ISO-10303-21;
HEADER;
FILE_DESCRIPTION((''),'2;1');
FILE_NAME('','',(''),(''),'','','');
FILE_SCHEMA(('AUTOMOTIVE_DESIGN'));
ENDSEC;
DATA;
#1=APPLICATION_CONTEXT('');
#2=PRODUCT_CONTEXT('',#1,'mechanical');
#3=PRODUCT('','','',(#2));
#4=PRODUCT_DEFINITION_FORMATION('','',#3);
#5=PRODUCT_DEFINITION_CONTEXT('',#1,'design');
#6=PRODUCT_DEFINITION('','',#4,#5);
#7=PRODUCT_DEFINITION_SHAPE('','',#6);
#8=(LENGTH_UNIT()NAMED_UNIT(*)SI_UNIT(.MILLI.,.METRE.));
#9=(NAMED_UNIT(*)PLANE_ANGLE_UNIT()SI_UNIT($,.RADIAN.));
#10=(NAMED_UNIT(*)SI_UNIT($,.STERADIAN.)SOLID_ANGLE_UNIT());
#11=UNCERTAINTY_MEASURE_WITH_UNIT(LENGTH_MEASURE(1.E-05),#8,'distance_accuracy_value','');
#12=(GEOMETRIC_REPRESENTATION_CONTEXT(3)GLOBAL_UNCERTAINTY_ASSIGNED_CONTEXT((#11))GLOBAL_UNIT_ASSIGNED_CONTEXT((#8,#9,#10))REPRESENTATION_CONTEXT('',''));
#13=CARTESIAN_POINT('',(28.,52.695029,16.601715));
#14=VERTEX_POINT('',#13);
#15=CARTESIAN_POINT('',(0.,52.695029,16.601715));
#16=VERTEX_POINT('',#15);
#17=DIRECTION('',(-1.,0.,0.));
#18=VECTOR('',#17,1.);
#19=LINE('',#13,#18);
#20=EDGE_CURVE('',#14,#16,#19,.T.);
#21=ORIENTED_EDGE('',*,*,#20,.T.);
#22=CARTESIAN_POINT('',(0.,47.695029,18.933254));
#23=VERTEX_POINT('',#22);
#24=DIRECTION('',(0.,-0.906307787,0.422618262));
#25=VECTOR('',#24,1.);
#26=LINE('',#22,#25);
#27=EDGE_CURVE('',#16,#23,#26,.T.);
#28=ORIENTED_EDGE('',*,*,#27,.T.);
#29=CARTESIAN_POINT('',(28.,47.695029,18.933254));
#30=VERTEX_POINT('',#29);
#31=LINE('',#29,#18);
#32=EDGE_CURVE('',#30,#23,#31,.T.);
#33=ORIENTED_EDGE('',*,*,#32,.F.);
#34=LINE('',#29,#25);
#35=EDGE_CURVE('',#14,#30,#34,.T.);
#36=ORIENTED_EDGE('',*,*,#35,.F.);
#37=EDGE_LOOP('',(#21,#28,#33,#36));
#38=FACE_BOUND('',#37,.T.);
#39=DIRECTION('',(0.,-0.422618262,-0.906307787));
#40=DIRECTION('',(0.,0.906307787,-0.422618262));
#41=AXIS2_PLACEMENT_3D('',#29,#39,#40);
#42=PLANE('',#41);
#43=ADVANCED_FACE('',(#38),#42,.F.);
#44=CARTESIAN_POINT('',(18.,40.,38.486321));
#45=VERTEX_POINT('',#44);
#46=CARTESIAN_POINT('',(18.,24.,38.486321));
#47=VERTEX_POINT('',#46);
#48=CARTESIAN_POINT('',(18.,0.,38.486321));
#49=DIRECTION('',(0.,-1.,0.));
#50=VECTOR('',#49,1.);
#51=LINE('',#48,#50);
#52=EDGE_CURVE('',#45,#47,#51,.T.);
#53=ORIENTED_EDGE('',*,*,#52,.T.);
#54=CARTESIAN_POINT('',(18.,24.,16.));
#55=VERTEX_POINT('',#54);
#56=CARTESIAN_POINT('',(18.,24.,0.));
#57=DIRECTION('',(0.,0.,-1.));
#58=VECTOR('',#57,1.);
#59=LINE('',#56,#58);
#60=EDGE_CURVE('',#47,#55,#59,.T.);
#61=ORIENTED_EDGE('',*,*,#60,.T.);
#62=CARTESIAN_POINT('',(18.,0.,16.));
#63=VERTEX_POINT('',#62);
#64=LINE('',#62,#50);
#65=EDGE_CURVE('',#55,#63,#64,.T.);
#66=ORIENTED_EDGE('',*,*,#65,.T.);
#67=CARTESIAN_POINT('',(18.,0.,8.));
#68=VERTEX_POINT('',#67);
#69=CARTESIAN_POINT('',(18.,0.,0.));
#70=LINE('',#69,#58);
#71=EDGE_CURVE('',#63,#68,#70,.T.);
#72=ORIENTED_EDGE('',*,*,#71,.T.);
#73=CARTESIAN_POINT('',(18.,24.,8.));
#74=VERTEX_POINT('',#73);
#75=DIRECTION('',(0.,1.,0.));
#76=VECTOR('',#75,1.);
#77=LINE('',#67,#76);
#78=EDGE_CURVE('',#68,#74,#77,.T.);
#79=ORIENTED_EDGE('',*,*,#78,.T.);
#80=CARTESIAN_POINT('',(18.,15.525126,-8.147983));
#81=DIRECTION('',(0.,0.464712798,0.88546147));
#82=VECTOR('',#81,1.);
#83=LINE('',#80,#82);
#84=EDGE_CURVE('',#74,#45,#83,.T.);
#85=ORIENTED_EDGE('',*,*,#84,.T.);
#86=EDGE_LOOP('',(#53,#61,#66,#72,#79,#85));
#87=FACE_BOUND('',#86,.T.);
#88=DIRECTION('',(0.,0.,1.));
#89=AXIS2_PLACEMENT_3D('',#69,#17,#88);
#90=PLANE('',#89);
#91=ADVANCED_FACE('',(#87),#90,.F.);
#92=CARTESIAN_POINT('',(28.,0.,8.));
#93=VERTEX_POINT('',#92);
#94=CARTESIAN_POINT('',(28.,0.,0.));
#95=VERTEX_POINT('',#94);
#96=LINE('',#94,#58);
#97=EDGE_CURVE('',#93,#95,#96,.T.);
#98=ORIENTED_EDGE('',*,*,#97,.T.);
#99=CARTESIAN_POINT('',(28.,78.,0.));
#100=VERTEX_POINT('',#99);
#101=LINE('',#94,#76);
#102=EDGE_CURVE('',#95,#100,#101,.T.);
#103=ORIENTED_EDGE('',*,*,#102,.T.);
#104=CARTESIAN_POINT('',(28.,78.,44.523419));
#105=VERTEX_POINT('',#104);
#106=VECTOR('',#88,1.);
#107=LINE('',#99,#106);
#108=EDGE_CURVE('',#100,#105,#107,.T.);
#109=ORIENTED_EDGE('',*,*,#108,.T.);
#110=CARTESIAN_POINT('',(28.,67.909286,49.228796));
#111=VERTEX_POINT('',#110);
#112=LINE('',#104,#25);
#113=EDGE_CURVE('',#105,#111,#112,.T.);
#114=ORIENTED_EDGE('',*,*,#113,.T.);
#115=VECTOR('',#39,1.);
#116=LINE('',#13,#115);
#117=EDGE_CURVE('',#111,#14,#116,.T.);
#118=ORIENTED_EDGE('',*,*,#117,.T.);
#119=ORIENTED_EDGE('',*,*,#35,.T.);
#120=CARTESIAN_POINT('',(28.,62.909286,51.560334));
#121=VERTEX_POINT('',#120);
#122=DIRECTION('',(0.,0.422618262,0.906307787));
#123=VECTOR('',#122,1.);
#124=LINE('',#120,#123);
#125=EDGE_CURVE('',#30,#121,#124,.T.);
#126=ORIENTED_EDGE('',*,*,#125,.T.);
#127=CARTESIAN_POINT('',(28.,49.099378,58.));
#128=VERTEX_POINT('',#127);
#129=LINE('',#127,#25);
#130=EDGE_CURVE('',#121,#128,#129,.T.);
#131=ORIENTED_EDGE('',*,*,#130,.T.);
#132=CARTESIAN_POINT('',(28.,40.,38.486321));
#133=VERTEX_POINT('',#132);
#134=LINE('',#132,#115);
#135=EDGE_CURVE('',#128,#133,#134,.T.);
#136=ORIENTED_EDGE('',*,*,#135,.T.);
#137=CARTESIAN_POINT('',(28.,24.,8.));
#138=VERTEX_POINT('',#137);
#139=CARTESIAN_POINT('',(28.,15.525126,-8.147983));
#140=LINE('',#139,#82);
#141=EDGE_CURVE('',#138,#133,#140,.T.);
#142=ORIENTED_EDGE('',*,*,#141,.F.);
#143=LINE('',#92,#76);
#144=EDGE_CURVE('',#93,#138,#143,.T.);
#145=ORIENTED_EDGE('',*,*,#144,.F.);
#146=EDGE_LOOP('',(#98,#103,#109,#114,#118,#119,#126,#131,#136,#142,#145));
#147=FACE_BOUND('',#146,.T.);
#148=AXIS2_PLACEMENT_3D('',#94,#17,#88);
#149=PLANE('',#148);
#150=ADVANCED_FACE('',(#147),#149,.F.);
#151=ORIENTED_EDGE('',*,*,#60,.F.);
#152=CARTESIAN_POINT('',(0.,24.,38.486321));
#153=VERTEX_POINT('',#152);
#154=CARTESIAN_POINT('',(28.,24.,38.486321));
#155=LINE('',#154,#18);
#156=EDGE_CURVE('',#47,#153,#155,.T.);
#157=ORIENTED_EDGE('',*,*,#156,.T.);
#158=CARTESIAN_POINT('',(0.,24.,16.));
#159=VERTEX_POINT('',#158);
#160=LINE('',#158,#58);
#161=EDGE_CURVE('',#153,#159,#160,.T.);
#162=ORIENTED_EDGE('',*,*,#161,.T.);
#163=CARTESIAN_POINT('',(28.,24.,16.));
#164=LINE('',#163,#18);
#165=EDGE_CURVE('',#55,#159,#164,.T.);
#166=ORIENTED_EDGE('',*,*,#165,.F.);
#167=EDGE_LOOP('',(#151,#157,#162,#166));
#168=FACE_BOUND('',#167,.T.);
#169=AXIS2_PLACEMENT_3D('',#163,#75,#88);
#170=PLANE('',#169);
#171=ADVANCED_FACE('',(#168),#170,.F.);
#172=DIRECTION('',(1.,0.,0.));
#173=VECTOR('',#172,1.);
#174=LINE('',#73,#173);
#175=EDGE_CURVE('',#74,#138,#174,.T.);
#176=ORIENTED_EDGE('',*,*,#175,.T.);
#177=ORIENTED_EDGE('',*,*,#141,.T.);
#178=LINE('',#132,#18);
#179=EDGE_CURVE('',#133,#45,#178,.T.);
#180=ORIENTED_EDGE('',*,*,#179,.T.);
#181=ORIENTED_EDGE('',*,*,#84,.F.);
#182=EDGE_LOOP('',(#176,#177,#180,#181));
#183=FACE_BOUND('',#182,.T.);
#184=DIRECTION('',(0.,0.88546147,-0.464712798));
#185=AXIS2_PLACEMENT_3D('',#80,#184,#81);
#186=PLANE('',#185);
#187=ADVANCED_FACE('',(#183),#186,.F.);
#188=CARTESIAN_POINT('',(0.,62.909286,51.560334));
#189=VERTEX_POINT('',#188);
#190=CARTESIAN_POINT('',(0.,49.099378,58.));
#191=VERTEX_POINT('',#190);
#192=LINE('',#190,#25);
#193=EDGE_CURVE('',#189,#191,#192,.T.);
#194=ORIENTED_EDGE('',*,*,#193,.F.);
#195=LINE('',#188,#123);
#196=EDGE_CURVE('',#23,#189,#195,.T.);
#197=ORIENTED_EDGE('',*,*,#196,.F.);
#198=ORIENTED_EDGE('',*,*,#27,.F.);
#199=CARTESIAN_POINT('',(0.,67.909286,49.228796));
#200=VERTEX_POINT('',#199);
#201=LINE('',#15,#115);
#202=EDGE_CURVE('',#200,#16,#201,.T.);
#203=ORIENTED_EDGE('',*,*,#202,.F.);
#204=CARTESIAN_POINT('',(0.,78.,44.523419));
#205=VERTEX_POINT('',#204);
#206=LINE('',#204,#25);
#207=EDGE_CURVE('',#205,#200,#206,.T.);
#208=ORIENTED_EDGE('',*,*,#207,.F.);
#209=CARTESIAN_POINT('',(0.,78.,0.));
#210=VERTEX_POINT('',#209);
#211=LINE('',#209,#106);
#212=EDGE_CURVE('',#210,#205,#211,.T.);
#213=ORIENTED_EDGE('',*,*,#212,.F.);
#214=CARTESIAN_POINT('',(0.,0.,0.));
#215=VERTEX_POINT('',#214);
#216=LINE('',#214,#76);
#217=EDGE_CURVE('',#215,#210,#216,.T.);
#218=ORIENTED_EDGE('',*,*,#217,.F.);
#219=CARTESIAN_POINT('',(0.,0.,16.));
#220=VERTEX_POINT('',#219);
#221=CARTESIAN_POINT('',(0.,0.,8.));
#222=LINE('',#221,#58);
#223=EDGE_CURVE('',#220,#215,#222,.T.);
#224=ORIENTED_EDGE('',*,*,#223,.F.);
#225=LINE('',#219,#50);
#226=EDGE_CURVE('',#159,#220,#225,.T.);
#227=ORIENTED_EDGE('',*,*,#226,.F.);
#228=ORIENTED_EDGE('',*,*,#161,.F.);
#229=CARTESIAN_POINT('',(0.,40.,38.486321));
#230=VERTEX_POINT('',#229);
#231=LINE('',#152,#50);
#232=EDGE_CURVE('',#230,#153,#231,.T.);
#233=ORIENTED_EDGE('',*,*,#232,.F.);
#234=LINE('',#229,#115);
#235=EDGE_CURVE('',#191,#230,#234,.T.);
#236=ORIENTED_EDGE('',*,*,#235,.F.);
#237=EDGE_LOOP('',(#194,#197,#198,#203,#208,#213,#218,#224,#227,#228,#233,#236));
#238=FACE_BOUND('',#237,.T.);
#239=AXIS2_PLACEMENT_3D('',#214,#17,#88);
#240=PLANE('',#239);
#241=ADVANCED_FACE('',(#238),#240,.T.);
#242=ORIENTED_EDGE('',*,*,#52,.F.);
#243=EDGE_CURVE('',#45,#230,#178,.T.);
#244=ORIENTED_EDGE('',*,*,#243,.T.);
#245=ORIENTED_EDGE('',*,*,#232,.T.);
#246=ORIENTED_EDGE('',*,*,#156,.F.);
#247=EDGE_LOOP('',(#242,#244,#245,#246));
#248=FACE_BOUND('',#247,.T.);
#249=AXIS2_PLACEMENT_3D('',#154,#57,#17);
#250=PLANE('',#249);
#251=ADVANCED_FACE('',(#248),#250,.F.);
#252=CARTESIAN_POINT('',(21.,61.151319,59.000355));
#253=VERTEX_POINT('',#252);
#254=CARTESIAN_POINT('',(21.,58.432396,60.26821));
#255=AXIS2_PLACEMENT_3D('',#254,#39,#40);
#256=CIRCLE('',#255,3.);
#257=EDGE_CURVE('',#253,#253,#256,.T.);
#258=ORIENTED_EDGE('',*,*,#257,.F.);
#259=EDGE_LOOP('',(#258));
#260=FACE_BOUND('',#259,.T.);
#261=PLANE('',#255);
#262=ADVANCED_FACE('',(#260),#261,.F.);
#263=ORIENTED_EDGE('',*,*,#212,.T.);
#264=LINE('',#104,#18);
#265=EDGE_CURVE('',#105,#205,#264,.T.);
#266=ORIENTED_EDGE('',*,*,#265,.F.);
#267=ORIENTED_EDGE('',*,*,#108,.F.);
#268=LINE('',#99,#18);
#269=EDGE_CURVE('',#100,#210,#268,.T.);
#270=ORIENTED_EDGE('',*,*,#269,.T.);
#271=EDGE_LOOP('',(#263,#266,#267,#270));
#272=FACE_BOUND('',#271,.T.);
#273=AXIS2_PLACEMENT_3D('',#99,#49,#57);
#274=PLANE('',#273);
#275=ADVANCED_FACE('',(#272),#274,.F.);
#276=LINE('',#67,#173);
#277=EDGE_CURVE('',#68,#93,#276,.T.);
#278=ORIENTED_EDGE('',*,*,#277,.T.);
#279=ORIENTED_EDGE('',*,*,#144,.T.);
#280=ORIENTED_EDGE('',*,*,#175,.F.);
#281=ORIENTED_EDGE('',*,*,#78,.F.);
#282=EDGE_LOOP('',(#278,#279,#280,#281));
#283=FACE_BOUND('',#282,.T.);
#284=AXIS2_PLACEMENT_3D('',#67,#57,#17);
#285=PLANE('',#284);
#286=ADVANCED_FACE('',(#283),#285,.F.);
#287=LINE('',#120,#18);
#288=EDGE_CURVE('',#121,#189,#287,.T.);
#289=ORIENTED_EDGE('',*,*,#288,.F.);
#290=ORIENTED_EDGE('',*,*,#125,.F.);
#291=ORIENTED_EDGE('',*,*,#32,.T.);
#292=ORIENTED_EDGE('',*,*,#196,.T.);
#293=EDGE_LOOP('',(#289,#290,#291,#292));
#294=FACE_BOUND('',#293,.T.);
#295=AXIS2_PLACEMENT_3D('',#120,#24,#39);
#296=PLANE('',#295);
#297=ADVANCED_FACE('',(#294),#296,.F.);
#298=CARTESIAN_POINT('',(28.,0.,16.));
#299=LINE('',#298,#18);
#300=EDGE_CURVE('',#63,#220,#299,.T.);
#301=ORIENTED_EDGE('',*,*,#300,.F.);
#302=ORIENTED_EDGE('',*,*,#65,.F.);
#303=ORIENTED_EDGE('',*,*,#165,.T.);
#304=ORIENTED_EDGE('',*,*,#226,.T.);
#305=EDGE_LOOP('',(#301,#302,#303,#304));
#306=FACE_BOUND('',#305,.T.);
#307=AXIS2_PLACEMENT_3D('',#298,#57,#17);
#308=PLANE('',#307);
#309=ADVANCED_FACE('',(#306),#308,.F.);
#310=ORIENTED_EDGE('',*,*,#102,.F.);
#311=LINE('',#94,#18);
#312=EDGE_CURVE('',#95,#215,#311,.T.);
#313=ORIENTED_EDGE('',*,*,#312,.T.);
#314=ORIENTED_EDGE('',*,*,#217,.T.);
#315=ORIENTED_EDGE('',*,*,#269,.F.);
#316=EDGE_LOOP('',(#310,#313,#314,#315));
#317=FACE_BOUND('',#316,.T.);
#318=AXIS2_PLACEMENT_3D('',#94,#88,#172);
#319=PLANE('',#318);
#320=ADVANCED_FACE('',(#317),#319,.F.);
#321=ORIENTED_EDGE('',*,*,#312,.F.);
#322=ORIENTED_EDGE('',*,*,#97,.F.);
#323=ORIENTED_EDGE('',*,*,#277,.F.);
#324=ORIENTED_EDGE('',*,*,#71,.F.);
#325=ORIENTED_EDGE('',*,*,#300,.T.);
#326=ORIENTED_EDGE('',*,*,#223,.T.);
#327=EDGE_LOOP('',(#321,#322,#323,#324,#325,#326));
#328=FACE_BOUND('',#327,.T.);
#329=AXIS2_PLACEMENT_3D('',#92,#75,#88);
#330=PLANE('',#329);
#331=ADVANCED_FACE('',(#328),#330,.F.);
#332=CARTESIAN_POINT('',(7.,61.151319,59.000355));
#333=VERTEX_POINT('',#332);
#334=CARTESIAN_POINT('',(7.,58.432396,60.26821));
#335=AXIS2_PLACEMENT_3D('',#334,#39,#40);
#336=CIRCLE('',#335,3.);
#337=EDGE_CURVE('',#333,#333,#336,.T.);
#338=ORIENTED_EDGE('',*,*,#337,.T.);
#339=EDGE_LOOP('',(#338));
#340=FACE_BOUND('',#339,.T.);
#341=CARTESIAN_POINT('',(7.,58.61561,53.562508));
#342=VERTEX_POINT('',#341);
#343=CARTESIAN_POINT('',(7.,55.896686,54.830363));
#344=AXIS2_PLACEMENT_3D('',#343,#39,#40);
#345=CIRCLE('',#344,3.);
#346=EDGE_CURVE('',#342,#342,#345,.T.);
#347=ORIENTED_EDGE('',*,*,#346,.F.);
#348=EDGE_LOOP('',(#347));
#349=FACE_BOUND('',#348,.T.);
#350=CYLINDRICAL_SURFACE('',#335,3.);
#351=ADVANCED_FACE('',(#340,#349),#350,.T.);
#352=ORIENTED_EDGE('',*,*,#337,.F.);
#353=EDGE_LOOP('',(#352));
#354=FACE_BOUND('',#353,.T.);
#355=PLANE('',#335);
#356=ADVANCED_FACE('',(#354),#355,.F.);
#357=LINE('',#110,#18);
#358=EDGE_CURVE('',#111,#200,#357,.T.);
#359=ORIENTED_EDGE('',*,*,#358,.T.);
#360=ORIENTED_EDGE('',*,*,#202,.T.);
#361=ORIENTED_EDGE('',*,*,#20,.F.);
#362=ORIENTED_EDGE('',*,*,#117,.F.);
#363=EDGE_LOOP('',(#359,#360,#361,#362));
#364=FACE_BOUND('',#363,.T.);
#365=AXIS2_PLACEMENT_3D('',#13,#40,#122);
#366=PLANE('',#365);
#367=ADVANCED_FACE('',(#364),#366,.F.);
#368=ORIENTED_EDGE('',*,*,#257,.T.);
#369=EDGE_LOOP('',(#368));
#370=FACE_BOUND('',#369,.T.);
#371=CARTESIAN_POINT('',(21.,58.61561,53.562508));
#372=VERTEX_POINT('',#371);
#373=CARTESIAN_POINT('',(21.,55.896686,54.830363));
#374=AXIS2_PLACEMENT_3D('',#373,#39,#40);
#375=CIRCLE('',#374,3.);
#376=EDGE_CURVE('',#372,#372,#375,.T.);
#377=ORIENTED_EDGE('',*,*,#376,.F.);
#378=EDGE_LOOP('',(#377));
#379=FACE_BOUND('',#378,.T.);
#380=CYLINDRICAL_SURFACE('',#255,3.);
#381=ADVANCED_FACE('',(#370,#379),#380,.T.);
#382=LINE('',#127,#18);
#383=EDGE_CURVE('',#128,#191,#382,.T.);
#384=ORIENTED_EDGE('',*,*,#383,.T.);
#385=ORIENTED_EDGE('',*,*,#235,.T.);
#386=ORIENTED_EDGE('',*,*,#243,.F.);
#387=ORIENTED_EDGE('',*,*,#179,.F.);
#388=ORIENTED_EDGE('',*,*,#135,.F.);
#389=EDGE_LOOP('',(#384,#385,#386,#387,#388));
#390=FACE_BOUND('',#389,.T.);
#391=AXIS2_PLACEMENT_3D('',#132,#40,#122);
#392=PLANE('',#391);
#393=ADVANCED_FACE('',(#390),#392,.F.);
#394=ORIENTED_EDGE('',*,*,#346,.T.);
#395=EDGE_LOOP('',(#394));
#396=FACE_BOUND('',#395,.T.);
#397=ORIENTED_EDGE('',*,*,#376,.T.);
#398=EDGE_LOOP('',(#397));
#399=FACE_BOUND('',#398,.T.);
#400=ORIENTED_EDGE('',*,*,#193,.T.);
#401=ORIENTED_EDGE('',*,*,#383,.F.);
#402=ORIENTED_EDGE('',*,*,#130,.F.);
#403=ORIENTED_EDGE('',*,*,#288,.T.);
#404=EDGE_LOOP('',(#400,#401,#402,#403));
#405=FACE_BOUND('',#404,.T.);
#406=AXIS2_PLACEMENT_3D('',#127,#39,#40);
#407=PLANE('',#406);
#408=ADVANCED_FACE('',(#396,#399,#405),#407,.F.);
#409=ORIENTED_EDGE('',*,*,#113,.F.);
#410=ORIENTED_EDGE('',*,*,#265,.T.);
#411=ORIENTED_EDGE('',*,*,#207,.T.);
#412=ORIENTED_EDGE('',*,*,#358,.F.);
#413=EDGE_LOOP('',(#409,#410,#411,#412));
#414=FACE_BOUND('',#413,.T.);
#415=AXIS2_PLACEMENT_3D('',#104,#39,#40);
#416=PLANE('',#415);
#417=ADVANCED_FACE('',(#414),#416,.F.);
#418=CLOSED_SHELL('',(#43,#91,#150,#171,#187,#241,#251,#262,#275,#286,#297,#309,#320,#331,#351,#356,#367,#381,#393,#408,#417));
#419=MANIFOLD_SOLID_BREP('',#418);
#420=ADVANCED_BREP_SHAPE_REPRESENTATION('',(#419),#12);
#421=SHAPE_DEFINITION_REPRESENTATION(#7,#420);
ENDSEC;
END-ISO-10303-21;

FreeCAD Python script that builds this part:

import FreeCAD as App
import Part
import Sketcher
Q = App.Units.Quantity


def add_polygon(sketch, points):
    """Adds a closed chain of lines whose ends are joined by coincident constraints."""
    first, n = sketch.GeometryCount, len(points)
    for a, b in zip(points, points[1:] + points[:1]):
        sketch.addGeometry(Part.LineSegment(App.Vector(*a, 0), App.Vector(*b, 0)), False)
    for i in range(n):
        sketch.addConstraint(Sketcher.Constraint("Coincident", first + i, 2, first + (i + 1) % n, 1))

doc = App.newDocument("Part")
body = doc.addObject("PartDesign::Body", "Body")

sketch1 = doc.addObject("Sketcher::SketchObject", "Sketch")
body.addObject(sketch1)
sketch1.AttachmentSupport = (doc.YZ_Plane, [""])
sketch1.MapMode = "FlatFace"
add_polygon(sketch1, [(0, 0), (78, 0), (78, 45), (68, 49), (53, 17), (48, 19), (63, 52), (49, 58), (40, 38), (24, 38), (24, 16), (0, 16)])
sketch1.addConstraint(Sketcher.Constraint("Horizontal", 0))
sketch1.addConstraint(Sketcher.Constraint("Vertical", 1))
sketch1.addConstraint(Sketcher.Constraint("Horizontal", 8))
sketch1.addConstraint(Sketcher.Constraint("Vertical", 9))
sketch1.addConstraint(Sketcher.Constraint("Horizontal", 10))
sketch1.addConstraint(Sketcher.Constraint("Vertical", 11))
sketch1.addConstraint(Sketcher.Constraint("Coincident", 11, 2, -1, 1))
sketch1.addConstraint(Sketcher.Constraint("Perpendicular", 2, 3))
sketch1.addConstraint(Sketcher.Constraint("Perpendicular", 3, 4))
sketch1.addConstraint(Sketcher.Constraint("Perpendicular", 4, 5))
sketch1.addConstraint(Sketcher.Constraint("Perpendicular", 5, 6))
sketch1.addConstraint(Sketcher.Constraint("Perpendicular", 6, 7))
sketch1.addConstraint(Sketcher.Constraint("Equal", 8, 11))
sketch1.addConstraint(Sketcher.Constraint("Equal", 3, 5))
sketch1.addConstraint(Sketcher.Constraint("DistanceX", 0, 1, 0, 2, Q("78 mm")))
sketch1.addConstraint(Sketcher.Constraint("DistanceX", 8, 2, 8, 1, Q("16 mm")))
sketch1.addConstraint(Sketcher.Constraint("DistanceX", 10, 2, 10, 1, Q("24 mm")))
sketch1.addConstraint(Sketcher.Constraint("Angle", 2, Q("155 deg")))
sketch1.addConstraint(Sketcher.Constraint("Distance", 3, Q("36 mm")))
sketch1.addConstraint(Sketcher.Constraint("DistanceY", -1, 1, 6, 2, Q("58 mm")))
sketch1.addConstraint(Sketcher.Constraint("DistanceX", 4, 2, 3, 2, Q("5 mm")))
sketch1.addConstraint(Sketcher.Constraint("DistanceY", 1, 1, 1, 2, Q("44.523419 mm")))
sketch1.addConstraint(Sketcher.Constraint("Distance", 2, Q("11.133871 mm")))
pad1 = doc.addObject("PartDesign::Pad", "Pad")
body.addObject(pad1)
pad1.Profile = sketch1
pad1.Length = 28

sketch2 = doc.addObject("Sketcher::SketchObject", "Sketch001")
body.addObject(sketch2)
sketch2.AttachmentSupport = (doc.YZ_Plane, [""])
sketch2.MapMode = "FlatFace"
sketch2.AttachmentOffset = App.Placement(App.Vector(0, 0, 28), App.Rotation())
add_polygon(sketch2, [(0, 16), (0, 8), (24, 8), (40, 38), (24, 38), (24, 16)])
sketch2.addConstraint(Sketcher.Constraint("Vertical", 0))
sketch2.addConstraint(Sketcher.Constraint("Horizontal", 1))
sketch2.addConstraint(Sketcher.Constraint("Horizontal", 3))
sketch2.addConstraint(Sketcher.Constraint("Vertical", 4))
sketch2.addConstraint(Sketcher.Constraint("Horizontal", 5))
sketch2.addConstraint(Sketcher.Constraint("PointOnObject", 0, 2, -2))
sketch2.addConstraint(Sketcher.Constraint("Vertical", 1, 2, 3, 2))
sketch2.addConstraint(Sketcher.Constraint("DistanceX", 1, 1, 1, 2, Q("24 mm")))
sketch2.addConstraint(Sketcher.Constraint("DistanceX", 3, 2, 3, 1, Q("16 mm")))
sketch2.addConstraint(Sketcher.Constraint("DistanceY", 0, 2, 0, 1, Q("8 mm")))
sketch2.addConstraint(Sketcher.Constraint("DistanceY", -1, 1, 0, 2, Q("8 mm")))
sketch2.addConstraint(Sketcher.Constraint("DistanceY", 4, 2, 4, 1, Q("22.486321 mm")))
pocket1 = doc.addObject("PartDesign::Pocket", "Pocket")
body.addObject(pocket1)
pocket1.Profile = sketch2
pocket1.Length = 10

sketch3 = doc.addObject("Sketcher::SketchObject", "Sketch002")
body.addObject(sketch3)
sketch3.Placement = App.Placement(App.Vector(0, 30.984742, 66.446994), App.Rotation(App.Vector(1, 0, 0), App.Vector(0, 0.906307787, -0.422618262), App.Vector(0, 0.422618262, 0.906307787), "ZXY"))
sketch3.addGeometry(Part.Circle(App.Vector(7, 27.5, 0), App.Vector(0, 0, 1), 3), False)
sketch3.addGeometry(Part.Circle(App.Vector(21, 27.5, 0), App.Vector(0, 0, 1), 3), False)
sketch3.addConstraint(Sketcher.Constraint("Equal", 0, 1))
sketch3.addConstraint(Sketcher.Constraint("Horizontal", 0, 3, 1, 3))
sketch3.addConstraint(Sketcher.Constraint("Diameter", 0, Q("6 mm")))
sketch3.addConstraint(Sketcher.Constraint("DistanceX", -1, 1, 0, 3, Q("7 mm")))
sketch3.addConstraint(Sketcher.Constraint("DistanceX", -1, 1, 1, 3, Q("21 mm")))
sketch3.addConstraint(Sketcher.Constraint("DistanceY", -1, 1, 0, 3, Q("27.487289 mm")))
pad2 = doc.addObject("PartDesign::Pad", "Pad001")
body.addObject(pad2)
pad2.Profile = sketch3
pad2.Length = 6

doc.recompute()
